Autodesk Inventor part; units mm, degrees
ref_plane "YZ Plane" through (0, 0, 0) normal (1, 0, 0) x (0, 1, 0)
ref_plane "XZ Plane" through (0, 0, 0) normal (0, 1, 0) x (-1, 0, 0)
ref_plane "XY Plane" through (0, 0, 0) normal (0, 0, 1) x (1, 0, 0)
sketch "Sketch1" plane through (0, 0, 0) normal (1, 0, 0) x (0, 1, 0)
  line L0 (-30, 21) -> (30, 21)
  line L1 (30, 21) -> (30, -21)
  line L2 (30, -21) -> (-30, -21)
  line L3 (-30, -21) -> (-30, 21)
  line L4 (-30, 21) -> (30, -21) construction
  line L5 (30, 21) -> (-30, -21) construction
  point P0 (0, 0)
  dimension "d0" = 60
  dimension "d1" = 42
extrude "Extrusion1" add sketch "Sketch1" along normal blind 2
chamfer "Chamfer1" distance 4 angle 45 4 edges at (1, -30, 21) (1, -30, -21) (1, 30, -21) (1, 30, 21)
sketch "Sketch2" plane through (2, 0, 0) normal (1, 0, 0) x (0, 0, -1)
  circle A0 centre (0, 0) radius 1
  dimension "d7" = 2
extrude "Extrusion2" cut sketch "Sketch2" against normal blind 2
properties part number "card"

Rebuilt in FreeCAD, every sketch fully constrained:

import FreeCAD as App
import Part
import Sketcher
from FreeCAD import Vector


def edges_at(feature, points):
    """Names of the edges that pass closest to the given points."""
    edges = feature.Shape.Edges
    near = lambda p: min(range(len(edges)), key=lambda i: edges[i].distToShape(Part.Vertex(*p))[0])
    return sorted({f"Edge{near(p) + 1}" for p in points})

doc = App.newDocument("Part")
body = doc.addObject("PartDesign::Body", "Body")

# Sketch on YZ plane
sketch1 = body.newObject("Sketcher::SketchObject", "Sketch")
sketch1.AttachmentSupport = (doc.getObject("YZ_Plane"), [""])
sketch1.MapMode = "FlatFace"
sketch1.addGeometry([
    Part.LineSegment(Vector(30, 21, 0), Vector(-30, 21, 0)),
    Part.LineSegment(Vector(-30, 21, 0), Vector(-30, -21, 0)),
    Part.LineSegment(Vector(-30, -21, 0), Vector(30, -21, 0)),
    Part.LineSegment(Vector(30, -21, 0), Vector(30, 21, 0)),
], False)
sketch1.addConstraint([
    Sketcher.Constraint("Coincident", 0, 2, 1, 1),
    Sketcher.Constraint("Coincident", 1, 2, 2, 1),
    Sketcher.Constraint("Coincident", 2, 2, 3, 1),
    Sketcher.Constraint("Coincident", 3, 2, 0, 1),
    Sketcher.Constraint("Horizontal", 0),
    Sketcher.Constraint("Vertical", 1),
    Sketcher.Constraint("Horizontal", 2),
    Sketcher.Constraint("Vertical", 3),
    Sketcher.Constraint("Symmetric", 0, 2, 2, 2, -1, 1),
    Sketcher.Constraint("DistanceX", 0, 2, 0, 1, 60.0),
    Sketcher.Constraint("DistanceY", 1, 2, 1, 1, 42.0),
])
pad1 = body.newObject("PartDesign::Pad", "Pad")
pad1.Profile = sketch1
pad1.Length = 2
doc.recompute()

chamfer = body.newObject("PartDesign::Chamfer", "Chamfer")
chamfer.Base = (pad1, edges_at(pad1, [
    (1, -30, 21),
    (1, -30, -21),
    (1, 30, -21),
    (1, 30, 21),
]))
chamfer.Size = 4

# Sketch on YZ plane
sketch2 = body.newObject("Sketcher::SketchObject", "Sketch001")
sketch2.AttachmentSupport = (doc.getObject("YZ_Plane"), [""])
sketch2.MapMode = "FlatFace"
sketch2.AttachmentOffset = App.Placement(Vector(0, 0, 2), App.Rotation())
sketch2.addGeometry(Part.Circle(Vector(0, 0, 0), Vector(0, 0, 1), 1), False)
sketch2.addConstraint([
    Sketcher.Constraint("Coincident", 0, 3, -1, 1),
    Sketcher.Constraint("Diameter", 0, 2.0),
])
pocket1 = body.newObject("PartDesign::Pocket", "Pocket")
pocket1.Profile = sketch2
pocket1.Length = 2

doc.recompute()
